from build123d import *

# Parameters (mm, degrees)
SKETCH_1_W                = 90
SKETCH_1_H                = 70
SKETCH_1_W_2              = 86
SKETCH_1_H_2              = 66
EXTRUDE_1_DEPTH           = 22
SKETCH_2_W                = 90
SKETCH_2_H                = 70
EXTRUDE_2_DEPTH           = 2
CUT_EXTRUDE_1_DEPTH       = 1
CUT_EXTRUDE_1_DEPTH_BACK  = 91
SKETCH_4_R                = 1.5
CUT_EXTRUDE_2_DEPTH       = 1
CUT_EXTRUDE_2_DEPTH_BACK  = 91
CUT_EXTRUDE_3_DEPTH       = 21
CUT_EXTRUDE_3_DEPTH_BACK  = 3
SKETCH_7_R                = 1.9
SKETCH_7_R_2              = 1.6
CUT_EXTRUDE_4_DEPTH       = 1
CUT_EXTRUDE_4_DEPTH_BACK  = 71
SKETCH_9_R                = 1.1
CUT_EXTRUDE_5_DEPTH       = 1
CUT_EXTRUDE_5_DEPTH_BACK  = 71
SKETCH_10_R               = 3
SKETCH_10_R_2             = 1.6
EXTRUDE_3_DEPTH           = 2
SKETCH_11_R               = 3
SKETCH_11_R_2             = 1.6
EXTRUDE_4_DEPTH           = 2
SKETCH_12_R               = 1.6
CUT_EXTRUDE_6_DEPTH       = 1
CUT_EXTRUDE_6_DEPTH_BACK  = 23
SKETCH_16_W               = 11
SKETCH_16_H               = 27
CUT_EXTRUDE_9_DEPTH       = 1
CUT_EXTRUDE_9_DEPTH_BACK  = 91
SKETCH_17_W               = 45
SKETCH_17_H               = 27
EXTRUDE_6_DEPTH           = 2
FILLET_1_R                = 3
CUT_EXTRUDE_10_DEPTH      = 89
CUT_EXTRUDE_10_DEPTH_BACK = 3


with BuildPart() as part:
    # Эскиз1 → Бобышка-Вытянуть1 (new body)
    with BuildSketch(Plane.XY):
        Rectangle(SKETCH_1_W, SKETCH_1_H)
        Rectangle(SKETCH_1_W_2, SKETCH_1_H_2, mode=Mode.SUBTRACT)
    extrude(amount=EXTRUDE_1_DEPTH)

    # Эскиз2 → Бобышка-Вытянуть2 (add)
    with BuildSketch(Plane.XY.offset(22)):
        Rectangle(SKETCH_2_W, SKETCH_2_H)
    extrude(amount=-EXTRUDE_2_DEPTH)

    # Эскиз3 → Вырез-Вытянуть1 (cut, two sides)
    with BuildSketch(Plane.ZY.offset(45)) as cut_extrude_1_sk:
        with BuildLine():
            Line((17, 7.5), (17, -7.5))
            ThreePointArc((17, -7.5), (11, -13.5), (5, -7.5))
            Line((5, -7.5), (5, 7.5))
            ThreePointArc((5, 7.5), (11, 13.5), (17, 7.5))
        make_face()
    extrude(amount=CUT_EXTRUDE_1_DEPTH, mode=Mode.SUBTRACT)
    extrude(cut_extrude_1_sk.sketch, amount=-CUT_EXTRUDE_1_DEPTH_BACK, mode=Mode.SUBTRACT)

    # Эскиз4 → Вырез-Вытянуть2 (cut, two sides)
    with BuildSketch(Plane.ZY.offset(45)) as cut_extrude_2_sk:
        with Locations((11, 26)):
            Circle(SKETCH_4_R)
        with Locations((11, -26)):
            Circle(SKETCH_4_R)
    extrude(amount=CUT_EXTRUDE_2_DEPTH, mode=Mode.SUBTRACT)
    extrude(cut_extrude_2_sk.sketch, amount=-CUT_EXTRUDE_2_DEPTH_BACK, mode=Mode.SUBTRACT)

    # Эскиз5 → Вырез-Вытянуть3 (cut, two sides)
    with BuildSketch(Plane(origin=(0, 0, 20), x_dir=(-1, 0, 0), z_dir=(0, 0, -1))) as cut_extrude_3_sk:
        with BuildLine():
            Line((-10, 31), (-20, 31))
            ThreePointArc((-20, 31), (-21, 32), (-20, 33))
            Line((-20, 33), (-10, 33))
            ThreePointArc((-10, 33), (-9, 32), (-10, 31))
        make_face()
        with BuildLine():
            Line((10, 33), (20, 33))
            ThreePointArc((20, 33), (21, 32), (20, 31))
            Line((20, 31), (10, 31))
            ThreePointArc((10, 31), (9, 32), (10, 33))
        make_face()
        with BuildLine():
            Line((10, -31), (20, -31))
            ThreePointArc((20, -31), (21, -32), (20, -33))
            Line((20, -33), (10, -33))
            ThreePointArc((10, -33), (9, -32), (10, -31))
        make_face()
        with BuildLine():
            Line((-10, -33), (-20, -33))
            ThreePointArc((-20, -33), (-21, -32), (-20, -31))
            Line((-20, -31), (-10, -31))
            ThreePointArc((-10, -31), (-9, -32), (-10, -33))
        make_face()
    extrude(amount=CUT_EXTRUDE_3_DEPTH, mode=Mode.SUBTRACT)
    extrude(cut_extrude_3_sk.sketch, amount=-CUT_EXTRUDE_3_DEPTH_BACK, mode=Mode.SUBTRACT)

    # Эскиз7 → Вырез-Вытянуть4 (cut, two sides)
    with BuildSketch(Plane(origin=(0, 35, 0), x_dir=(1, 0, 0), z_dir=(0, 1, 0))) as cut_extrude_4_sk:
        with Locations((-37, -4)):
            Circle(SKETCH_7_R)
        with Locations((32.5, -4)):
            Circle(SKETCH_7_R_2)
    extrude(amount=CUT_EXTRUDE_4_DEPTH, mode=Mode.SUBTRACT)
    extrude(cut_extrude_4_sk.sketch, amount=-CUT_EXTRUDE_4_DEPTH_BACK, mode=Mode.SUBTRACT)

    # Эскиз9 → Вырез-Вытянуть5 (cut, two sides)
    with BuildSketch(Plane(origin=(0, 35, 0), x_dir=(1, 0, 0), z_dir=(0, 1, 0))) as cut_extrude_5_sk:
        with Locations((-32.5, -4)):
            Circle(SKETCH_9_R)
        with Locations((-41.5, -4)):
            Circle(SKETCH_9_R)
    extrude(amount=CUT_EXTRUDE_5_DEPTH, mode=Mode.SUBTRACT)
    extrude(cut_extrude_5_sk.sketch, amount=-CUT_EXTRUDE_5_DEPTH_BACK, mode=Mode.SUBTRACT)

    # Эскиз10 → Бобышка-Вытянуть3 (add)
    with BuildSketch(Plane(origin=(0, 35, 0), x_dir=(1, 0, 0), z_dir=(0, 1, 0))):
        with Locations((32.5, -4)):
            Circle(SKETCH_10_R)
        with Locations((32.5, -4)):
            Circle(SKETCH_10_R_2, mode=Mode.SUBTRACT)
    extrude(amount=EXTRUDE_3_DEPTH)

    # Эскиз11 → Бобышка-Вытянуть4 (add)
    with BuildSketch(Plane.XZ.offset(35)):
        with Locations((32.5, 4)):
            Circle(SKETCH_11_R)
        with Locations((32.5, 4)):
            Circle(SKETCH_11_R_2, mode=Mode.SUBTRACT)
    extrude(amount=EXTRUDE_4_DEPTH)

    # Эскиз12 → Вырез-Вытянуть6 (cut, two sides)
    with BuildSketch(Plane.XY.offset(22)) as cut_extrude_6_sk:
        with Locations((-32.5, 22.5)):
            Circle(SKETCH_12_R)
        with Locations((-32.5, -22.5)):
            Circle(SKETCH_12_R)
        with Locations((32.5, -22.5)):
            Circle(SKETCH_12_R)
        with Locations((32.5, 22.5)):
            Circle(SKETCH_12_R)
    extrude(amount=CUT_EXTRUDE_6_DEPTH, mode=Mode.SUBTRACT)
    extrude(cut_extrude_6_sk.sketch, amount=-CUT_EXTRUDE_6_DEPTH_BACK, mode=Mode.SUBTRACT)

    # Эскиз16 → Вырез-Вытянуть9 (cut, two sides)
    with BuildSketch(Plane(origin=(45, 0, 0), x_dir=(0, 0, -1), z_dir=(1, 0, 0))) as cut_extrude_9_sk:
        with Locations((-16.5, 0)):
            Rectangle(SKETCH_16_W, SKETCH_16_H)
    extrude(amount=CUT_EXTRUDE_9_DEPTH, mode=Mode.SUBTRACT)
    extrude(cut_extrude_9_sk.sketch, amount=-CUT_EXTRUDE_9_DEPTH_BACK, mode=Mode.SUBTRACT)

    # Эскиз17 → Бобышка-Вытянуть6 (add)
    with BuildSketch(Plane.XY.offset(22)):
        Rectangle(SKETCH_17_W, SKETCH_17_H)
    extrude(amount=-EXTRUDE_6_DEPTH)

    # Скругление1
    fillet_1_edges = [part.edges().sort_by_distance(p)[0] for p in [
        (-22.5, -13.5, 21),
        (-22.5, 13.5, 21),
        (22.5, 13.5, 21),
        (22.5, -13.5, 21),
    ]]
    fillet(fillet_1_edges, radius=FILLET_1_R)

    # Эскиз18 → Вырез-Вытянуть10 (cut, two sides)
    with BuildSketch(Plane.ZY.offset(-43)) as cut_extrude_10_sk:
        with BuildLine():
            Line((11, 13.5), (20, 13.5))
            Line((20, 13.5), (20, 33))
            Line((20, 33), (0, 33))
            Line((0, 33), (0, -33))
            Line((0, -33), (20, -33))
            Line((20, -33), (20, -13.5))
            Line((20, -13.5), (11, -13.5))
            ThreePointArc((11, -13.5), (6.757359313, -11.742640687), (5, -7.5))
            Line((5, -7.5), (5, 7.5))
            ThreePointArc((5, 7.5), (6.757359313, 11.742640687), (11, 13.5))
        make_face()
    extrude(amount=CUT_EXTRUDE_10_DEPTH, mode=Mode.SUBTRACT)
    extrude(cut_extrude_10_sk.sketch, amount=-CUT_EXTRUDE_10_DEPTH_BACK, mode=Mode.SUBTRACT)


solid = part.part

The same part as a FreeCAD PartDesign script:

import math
import FreeCAD as App
import Part
import Sketcher

V = App.Vector


def edges_at(feature, points):
    """Names of the edges that pass closest to the given points."""
    edges = feature.Shape.Edges
    near = lambda p: min(range(len(edges)), key=lambda i: edges[i].distToShape(Part.Vertex(*p))[0])
    return sorted({f"Edge{near(p) + 1}" for p in points})

doc = App.newDocument("Part")
body = doc.addObject("PartDesign::Body", "Body")

sketch1 = body.newObject("Sketcher::SketchObject", "Sketch")
sketch1.AttachmentSupport = (doc.getObject("XY_Plane"), [""])
sketch1.MapMode = "FlatFace"
sketch1.addGeometry([
    Part.LineSegment(V(-45, 35, 0), V(-45, -35, 0)),
    Part.LineSegment(V(-45, -35, 0), V(45, -35, 0)),
    Part.LineSegment(V(45, -35, 0), V(45, 35, 0)),
    Part.LineSegment(V(45, 35, 0), V(-45, 35, 0)),
    Part.LineSegment(V(43, -33, 0), V(-43, -33, 0)),
    Part.LineSegment(V(-43, -33, 0), V(-43, 33, 0)),
    Part.LineSegment(V(-43, 33, 0), V(43, 33, 0)),
    Part.LineSegment(V(43, 33, 0), V(43, -33, 0)),
], False)
sketch1.addConstraint([
    Sketcher.Constraint("Coincident", 0, 2, 1, 1),
    Sketcher.Constraint("Coincident", 1, 2, 2, 1),
    Sketcher.Constraint("Coincident", 2, 2, 3, 1),
    Sketcher.Constraint("Coincident", 3, 2, 0, 1),
    Sketcher.Constraint("Coincident", 4, 2, 5, 1),
    Sketcher.Constraint("Coincident", 5, 2, 6, 1),
    Sketcher.Constraint("Coincident", 6, 2, 7, 1),
    Sketcher.Constraint("Coincident", 7, 2, 4, 1),
    Sketcher.Constraint("Vertical", 0),
    Sketcher.Constraint("Horizontal", 1),
    Sketcher.Constraint("Vertical", 2),
    Sketcher.Constraint("Horizontal", 3),
    Sketcher.Constraint("Horizontal", 4),
    Sketcher.Constraint("Vertical", 5),
    Sketcher.Constraint("Horizontal", 6),
    Sketcher.Constraint("Vertical", 7),
    Sketcher.Constraint("Symmetric", 0, 2, 2, 2, -1, 1),
    Sketcher.Constraint("Symmetric", 4, 2, 6, 2, -1, 1),
    Sketcher.Constraint("DistanceX", 1, 1, 1, 2, 90.0),
    Sketcher.Constraint("DistanceX", 4, 2, 4, 1, 86.0),
    Sketcher.Constraint("DistanceY", 0, 2, 0, 1, 70.0),
    Sketcher.Constraint("DistanceY", 5, 1, 5, 2, 66.0),
])
pad1 = body.newObject("PartDesign::Pad", "Pad")
pad1.Profile = sketch1
pad1.Length = 22

sketch2 = body.newObject("Sketcher::SketchObject", "Sketch001")
sketch2.AttachmentSupport = (doc.getObject("XY_Plane"), [""])
sketch2.MapMode = "FlatFace"
sketch2.AttachmentOffset = App.Placement(V(0, 0, 22), App.Rotation())
sketch2.addGeometry([
    Part.LineSegment(V(-45, 35, 0), V(-45, -35, 0)),
    Part.LineSegment(V(-45, -35, 0), V(45, -35, 0)),
    Part.LineSegment(V(45, -35, 0), V(45, 35, 0)),
    Part.LineSegment(V(45, 35, 0), V(-45, 35, 0)),
], False)
sketch2.addConstraint([
    Sketcher.Constraint("Coincident", 0, 2, 1, 1),
    Sketcher.Constraint("Coincident", 1, 2, 2, 1),
    Sketcher.Constraint("Coincident", 2, 2, 3, 1),
    Sketcher.Constraint("Coincident", 3, 2, 0, 1),
    Sketcher.Constraint("Vertical", 0),
    Sketcher.Constraint("Horizontal", 1),
    Sketcher.Constraint("Vertical", 2),
    Sketcher.Constraint("Horizontal", 3),
    Sketcher.Constraint("Symmetric", 0, 2, 2, 2, -1, 1),
    Sketcher.Constraint("DistanceX", 1, 1, 1, 2, 90.0),
    Sketcher.Constraint("DistanceY", 0, 2, 0, 1, 70.0),
])
pad2 = body.newObject("PartDesign::Pad", "Pad001")
pad2.Profile = sketch2
pad2.Length = 2
pad2.Reversed = True

sketch3 = body.newObject("Sketcher::SketchObject", "Sketch002")
sketch3.AttachmentSupport = (doc.getObject("YZ_Plane"), [""])
sketch3.MapMode = "FlatFace"
sketch3.AttachmentOffset = App.Placement(V(0, 0, -45), App.Rotation())
sketch3.addGeometry([
    Part.LineSegment(V(-8, 17, 0), V(8, 17, 0)),
    Part.ArcOfCircle(Part.Circle(V(8, 11, 0), V(0, 0, 1), 6), math.radians(-90), math.radians(90)),
    Part.LineSegment(V(8, 5, 0), V(-8, 5, 0)),
    Part.ArcOfCircle(Part.Circle(V(-8, 11, 0), V(0, 0, 1), 6), math.radians(90), math.radians(270)),
], False)
sketch3.addConstraint([
    Sketcher.Constraint("Tangent", 0, 2, 1, 2),
    Sketcher.Constraint("Tangent", 1, 1, 2, 1),
    Sketcher.Constraint("Tangent", 2, 2, 3, 2),
    Sketcher.Constraint("Tangent", 3, 1, 0, 1),
    Sketcher.Constraint("Horizontal", 0),
    Sketcher.Constraint("Horizontal", 2),
    Sketcher.Constraint("Radius", 1, 6.0),
    Sketcher.Constraint("DistanceX", 0, 1, 0, 2, 15.0),
    Sketcher.Constraint("DistanceY", -1, 1, 1, 3, 11.0),
    Sketcher.Constraint("DistanceX", -1, 1, 1, 3, 7.5),
])
pocket1 = body.newObject("PartDesign::Pocket", "Pocket")
pocket1.Profile = sketch3
pocket1.Type = "ThroughAll"
pocket1.Midplane = True

sketch4 = body.newObject("Sketcher::SketchObject", "Sketch003")
sketch4.AttachmentSupport = (doc.getObject("YZ_Plane"), [""])
sketch4.MapMode = "FlatFace"
sketch4.AttachmentOffset = App.Placement(V(0, 0, -45), App.Rotation())
sketch4.addGeometry([
    Part.Circle(V(26, 11, 0), V(0, 0, 1), 1.5),
    Part.Circle(V(-26, 11, 0), V(0, 0, 1), 1.5),
], False)
sketch4.addConstraint([
    Sketcher.Constraint("Equal", 0, 1),
    Sketcher.Constraint("Symmetric", 0, 3, 1, 3, -2),
    Sketcher.Constraint("Diameter", 0, 3.0),
    Sketcher.Constraint("DistanceX", -1, 1, 0, 3, 26.0),
    Sketcher.Constraint("DistanceY", -1, 1, 0, 3, 11.0),
])
pocket2 = body.newObject("PartDesign::Pocket", "Pocket001")
pocket2.Profile = sketch4
pocket2.Type = "ThroughAll"
pocket2.Midplane = True

sketch5 = body.newObject("Sketcher::SketchObject", "Sketch004")
sketch5.AttachmentSupport = (doc.getObject("XY_Plane"), [""])
sketch5.MapMode = "FlatFace"
sketch5.AttachmentOffset = App.Placement(V(0, 0, 20), App.Rotation())
sketch5.addGeometry([
    Part.LineSegment(V(20, 31, 0), V(10, 31, 0)),
    Part.ArcOfCircle(Part.Circle(V(10, 32, 0), V(0, 0, 1), 1), math.radians(90), math.radians(270)),
    Part.LineSegment(V(10, 33, 0), V(20, 33, 0)),
    Part.ArcOfCircle(Part.Circle(V(20, 32, 0), V(0, 0, 1), 1), math.radians(-90), math.radians(90)),
    Part.LineSegment(V(-20, 33, 0), V(-10, 33, 0)),
    Part.ArcOfCircle(Part.Circle(V(-10, 32, 0), V(0, 0, 1), 1), math.radians(-90), math.radians(90)),
    Part.LineSegment(V(-10, 31, 0), V(-20, 31, 0)),
    Part.ArcOfCircle(Part.Circle(V(-20, 32, 0), V(0, 0, 1), 1), math.radians(90), math.radians(270)),
    Part.LineSegment(V(-20, -31, 0), V(-10, -31, 0)),
    Part.ArcOfCircle(Part.Circle(V(-10, -32, 0), V(0, 0, 1), 1), math.radians(-90), math.radians(90)),
    Part.LineSegment(V(-10, -33, 0), V(-20, -33, 0)),
    Part.ArcOfCircle(Part.Circle(V(-20, -32, 0), V(0, 0, 1), 1), math.radians(90), math.radians(270)),
    Part.LineSegment(V(20, -33, 0), V(10, -33, 0)),
    Part.ArcOfCircle(Part.Circle(V(10, -32, 0), V(0, 0, 1), 1), math.radians(90), math.radians(270)),
    Part.LineSegment(V(10, -31, 0), V(20, -31, 0)),
    Part.ArcOfCircle(Part.Circle(V(20, -32, 0), V(0, 0, 1), 1), math.radians(-90), math.radians(90)),
], False)
sketch5.addConstraint([
    Sketcher.Constraint("Tangent", 0, 2, 1, 2),
    Sketcher.Constraint("Tangent", 1, 1, 2, 1),
    Sketcher.Constraint("Tangent", 2, 2, 3, 2),
    Sketcher.Constraint("Tangent", 3, 1, 0, 1),
    Sketcher.Constraint("Tangent", 4, 2, 5, 2),
    Sketcher.Constraint("Tangent", 5, 1, 6, 1),
    Sketcher.Constraint("Tangent", 6, 2, 7, 2),
    Sketcher.Constraint("Tangent", 7, 1, 4, 1),
    Sketcher.Constraint("Tangent", 8, 2, 9, 2),
    Sketcher.Constraint("Tangent", 9, 1, 10, 1),
    Sketcher.Constraint("Tangent", 10, 2, 11, 2),
    Sketcher.Constraint("Tangent", 11, 1, 8, 1),
    Sketcher.Constraint("Tangent", 12, 2, 13, 2),
    Sketcher.Constraint("Tangent", 13, 1, 14, 1),
    Sketcher.Constraint("Tangent", 14, 2, 15, 2),
    Sketcher.Constraint("Tangent", 15, 1, 12, 1),
    Sketcher.Constraint("Horizontal", 0),
    Sketcher.Constraint("Horizontal", 2),
    Sketcher.Constraint("Horizontal", 4),
    Sketcher.Constraint("Horizontal", 6),
    Sketcher.Constraint("Horizontal", 8),
    Sketcher.Constraint("Horizontal", 10),
    Sketcher.Constraint("Horizontal", 12),
    Sketcher.Constraint("Horizontal", 14),
    Sketcher.Constraint("Equal", 3, 5),
    Sketcher.Constraint("Equal", 7, 9),
    Sketcher.Constraint("Equal", 11, 13),
    Sketcher.Constraint("Symmetric", 1, 3, 9, 3, -1, 1),
    Sketcher.Constraint("Symmetric", 5, 3, 13, 3, -1, 1),
    Sketcher.Constraint("Symmetric", 1, 3, 5, 3, -2),
    Sketcher.Constraint("Vertical", 7, 3, 11, 3),
    Sketcher.Constraint("Vertical", 3, 3, 15, 3),
    Sketcher.Constraint("Equal", 2, 4),
    Sketcher.Constraint("Radius", 1, 1.0),
    Sketcher.Constraint("DistanceX", 0, 2, 0, 1, 10.0),
    Sketcher.Constraint("DistanceX", -1, 1, 1, 3, 10.0),
    Sketcher.Constraint("DistanceY", -1, 1, 1, 3, 32.0),
])
pocket3 = body.newObject("PartDesign::Pocket", "Pocket002")
pocket3.Profile = sketch5
pocket3.Type = "ThroughAll"
pocket3.Midplane = True

sketch6 = body.newObject("Sketcher::SketchObject", "Sketch005")
sketch6.AttachmentSupport = (doc.getObject("XZ_Plane"), [""])
sketch6.MapMode = "FlatFace"
sketch6.AttachmentOffset = App.Placement(V(0, 0, -35), App.Rotation())
sketch6.addGeometry([
    Part.Circle(V(-37, 4, 0), V(0, 0, 1), 1.9),
    Part.Circle(V(32.5, 4, 0), V(0, 0, 1), 1.6),
], False)
sketch6.addConstraint([
    Sketcher.Constraint("Horizontal", 0, 3, 1, 3),
    Sketcher.Constraint("Diameter", 0, 3.8),
    Sketcher.Constraint("Diameter", 1, 3.2),
    Sketcher.Constraint("DistanceX", 0, 3, -1, 1, 37.0),
    Sketcher.Constraint("DistanceY", -1, 1, 0, 3, 4.0),
    Sketcher.Constraint("DistanceX", -1, 1, 1, 3, 32.5),
])
pocket4 = body.newObject("PartDesign::Pocket", "Pocket003")
pocket4.Profile = sketch6
pocket4.Type = "ThroughAll"
pocket4.Midplane = True

sketch7 = body.newObject("Sketcher::SketchObject", "Sketch006")
sketch7.AttachmentSupport = (doc.getObject("XZ_Plane"), [""])
sketch7.MapMode = "FlatFace"
sketch7.AttachmentOffset = App.Placement(V(0, 0, -35), App.Rotation())
sketch7.addGeometry([
    Part.Circle(V(-32.5, 4, 0), V(0, 0, 1), 1.1),
    Part.Circle(V(-41.5, 4, 0), V(0, 0, 1), 1.1),
], False)
sketch7.addConstraint([
    Sketcher.Constraint("Equal", 0, 1),
    Sketcher.Constraint("Horizontal", 0, 3, 1, 3),
    Sketcher.Constraint("Diameter", 0, 2.2),
    Sketcher.Constraint("DistanceY", -1, 1, 0, 3, 4.0),
    Sketcher.Constraint("DistanceX", 1, 3, 0, 3, 9.0),
    Sketcher.Constraint("DistanceX", 0, 3, -1, 1, 32.5),
])
pocket5 = body.newObject("PartDesign::Pocket", "Pocket004")
pocket5.Profile = sketch7
pocket5.Type = "ThroughAll"
pocket5.Midplane = True

sketch8 = body.newObject("Sketcher::SketchObject", "Sketch007")
sketch8.AttachmentSupport = (doc.getObject("XZ_Plane"), [""])
sketch8.MapMode = "FlatFace"
sketch8.AttachmentOffset = App.Placement(V(0, 0, -35), App.Rotation())
sketch8.addGeometry([
    Part.Circle(V(32.5, 4, 0), V(0, 0, 1), 3),
    Part.Circle(V(32.5, 4, 0), V(0, 0, 1), 1.6),
], False)
sketch8.addConstraint([
    Sketcher.Constraint("Coincident", 1, 3, 0, 3),
    Sketcher.Constraint("Diameter", 0, 6.0),
    Sketcher.Constraint("Diameter", 1, 3.2),
    Sketcher.Constraint("DistanceY", -1, 1, 0, 3, 4.0),
    Sketcher.Constraint("DistanceX", -1, 1, 0, 3, 32.5),
])
pad3 = body.newObject("PartDesign::Pad", "Pad002")
pad3.Profile = sketch8
pad3.Length = 2
pad3.Reversed = True

sketch9 = body.newObject("Sketcher::SketchObject", "Sketch008")
sketch9.AttachmentSupport = (doc.getObject("XZ_Plane"), [""])
sketch9.MapMode = "FlatFace"
sketch9.AttachmentOffset = App.Placement(V(0, 0, 35), App.Rotation())
sketch9.addGeometry([
    Part.Circle(V(32.5, 4, 0), V(0, 0, 1), 3),
    Part.Circle(V(32.5, 4, 0), V(0, 0, 1), 1.6),
], False)
sketch9.addConstraint([
    Sketcher.Constraint("Coincident", 1, 3, 0, 3),
    Sketcher.Constraint("Diameter", 0, 6.0),
    Sketcher.Constraint("Diameter", 1, 3.2),
    Sketcher.Constraint("DistanceY", -1, 1, 0, 3, 4.0),
    Sketcher.Constraint("DistanceX", -1, 1, 0, 3, 32.5),
])
pad4 = body.newObject("PartDesign::Pad", "Pad003")
pad4.Profile = sketch9
pad4.Length = 2

sketch10 = body.newObject("Sketcher::SketchObject", "Sketch009")
sketch10.AttachmentSupport = (doc.getObject("XY_Plane"), [""])
sketch10.MapMode = "FlatFace"
sketch10.AttachmentOffset = App.Placement(V(0, 0, 22), App.Rotation())
sketch10.addGeometry([
    Part.Circle(V(-32.5, 22.5, 0), V(0, 0, 1), 1.6),
    Part.Circle(V(-32.5, -22.5, 0), V(0, 0, 1), 1.6),
    Part.Circle(V(32.5, -22.5, 0), V(0, 0, 1), 1.6),
    Part.Circle(V(32.5, 22.5, 0), V(0, 0, 1), 1.6),
], False)
sketch10.addConstraint([
    Sketcher.Constraint("Equal", 0, 1),
    Sketcher.Constraint("Equal", 1, 2),
    Sketcher.Constraint("Equal", 2, 3),
    Sketcher.Constraint("Symmetric", 0, 3, 2, 3, -1, 1),
    Sketcher.Constraint("Symmetric", 1, 3, 3, 3, -1, 1),
    Sketcher.Constraint("Symmetric", 1, 3, 2, 3, -2),
    Sketcher.Constraint("Diameter", 0, 3.2),
    Sketcher.Constraint("DistanceY", 1, 3, 0, 3, 45.0),
    Sketcher.Constraint("DistanceX", 1, 3, 2, 3, 65.0),
])
pocket6 = body.newObject("PartDesign::Pocket", "Pocket005")
pocket6.Profile = sketch10
pocket6.Type = "ThroughAll"
pocket6.Midplane = True

sketch11 = body.newObject("Sketcher::SketchObject", "Sketch010")
sketch11.AttachmentSupport = (doc.getObject("YZ_Plane"), [""])
sketch11.MapMode = "FlatFace"
sketch11.AttachmentOffset = App.Placement(V(0, 0, 45), App.Rotation())
sketch11.addGeometry([
    Part.LineSegment(V(14, 22, 0), V(-14, 22, 0)),
    Part.LineSegment(V(-14, 22, 0), V(-14, 11, 0)),
    Part.LineSegment(V(-14, 11, 0), V(14, 11, 0)),
    Part.LineSegment(V(14, 11, 0), V(14, 22, 0)),
], False)
sketch11.addConstraint([
    Sketcher.Constraint("Coincident", 0, 2, 1, 1),
    Sketcher.Constraint("Coincident", 1, 2, 2, 1),
    Sketcher.Constraint("Coincident", 2, 2, 3, 1),
    Sketcher.Constraint("Coincident", 3, 2, 0, 1),
    Sketcher.Constraint("Horizontal", 0),
    Sketcher.Constraint("Vertical", 1),
    Sketcher.Constraint("Horizontal", 2),
    Sketcher.Constraint("Vertical", 3),
    Sketcher.Constraint("DistanceX", 0, 2, 0, 1, 27.0),
    Sketcher.Constraint("DistanceY", 1, 2, 1, 1, 11.0),
    Sketcher.Constraint("DistanceY", -1, 1, 0, 2, 22.0),
    Sketcher.Constraint("DistanceX", 0, 2, -1, 1, 13.5),
])
pocket7 = body.newObject("PartDesign::Pocket", "Pocket006")
pocket7.Profile = sketch11
pocket7.Type = "ThroughAll"
pocket7.Midplane = True

sketch12 = body.newObject("Sketcher::SketchObject", "Sketch011")
sketch12.AttachmentSupport = (doc.getObject("XY_Plane"), [""])
sketch12.MapMode = "FlatFace"
sketch12.AttachmentOffset = App.Placement(V(0, 0, 22), App.Rotation())
sketch12.addGeometry([
    Part.LineSegment(V(-22, 14, 0), V(-22, -14, 0)),
    Part.LineSegment(V(-22, -14, 0), V(22, -14, 0)),
    Part.LineSegment(V(22, -14, 0), V(22, 14, 0)),
    Part.LineSegment(V(22, 14, 0), V(-22, 14, 0)),
], False)
sketch12.addConstraint([
    Sketcher.Constraint("Coincident", 0, 2, 1, 1),
    Sketcher.Constraint("Coincident", 1, 2, 2, 1),
    Sketcher.Constraint("Coincident", 2, 2, 3, 1),
    Sketcher.Constraint("Coincident", 3, 2, 0, 1),
    Sketcher.Constraint("Vertical", 0),
    Sketcher.Constraint("Horizontal", 1),
    Sketcher.Constraint("Vertical", 2),
    Sketcher.Constraint("Horizontal", 3),
    Sketcher.Constraint("Symmetric", 0, 2, 2, 2, -1, 1),
    Sketcher.Constraint("DistanceX", 1, 1, 1, 2, 45.0),
    Sketcher.Constraint("DistanceY", 0, 2, 0, 1, 27.0),
])
pad5 = body.newObject("PartDesign::Pad", "Pad004")
pad5.Profile = sketch12
pad5.Length = 2
pad5.Reversed = True
doc.recompute()

fillet = body.newObject("PartDesign::Fillet", "Fillet")
fillet.Base = (pad5, edges_at(pad5, [
    (-22.5, -13.5, 21),
    (-22.5, 13.5, 21),
    (22.5, 13.5, 21),
    (22.5, -13.5, 21),
]))
fillet.Radius = 3

sketch13 = body.newObject("Sketcher::SketchObject", "Sketch012")
sketch13.AttachmentSupport = (doc.getObject("YZ_Plane"), [""])
sketch13.MapMode = "FlatFace"
sketch13.AttachmentOffset = App.Placement(V(0, 0, 43), App.Rotation())
sketch13.addGeometry([
    Part.LineSegment(V(14, 11, 0), V(14, 20, 0)),
    Part.LineSegment(V(14, 20, 0), V(33, 20, 0)),
    Part.LineSegment(V(33, 20, 0), V(33, 0, 0)),
    Part.LineSegment(V(33, 0, 0), V(-33, 0, 0)),
    Part.LineSegment(V(-33, 0, 0), V(-33, 20, 0)),
    Part.LineSegment(V(-33, 20, 0), V(-14, 20, 0)),
    Part.LineSegment(V(-14, 20, 0), V(-14, 11, 0)),
    Part.ArcOfCircle(Part.Circle(V(-8, 11, 0), V(0, 0, 1), 6), math.radians(180), math.radians(270)),
    Part.LineSegment(V(-8, 5, 0), V(8, 5, 0)),
    Part.ArcOfCircle(Part.Circle(V(8, 11, 0), V(0, 0, 1), 6), math.radians(-90), math.radians(0)),
], False)
sketch13.addConstraint([
    Sketcher.Constraint("Coincident", 0, 2, 1, 1),
    Sketcher.Constraint("Coincident", 1, 2, 2, 1),
    Sketcher.Constraint("Coincident", 2, 2, 3, 1),
    Sketcher.Constraint("Coincident", 3, 2, 4, 1),
    Sketcher.Constraint("Coincident", 4, 2, 5, 1),
    Sketcher.Constraint("Coincident", 5, 2, 6, 1),
    Sketcher.Constraint("Tangent", 6, 2, 7, 1),
    Sketcher.Constraint("Tangent", 7, 2, 8, 1),
    Sketcher.Constraint("Tangent", 8, 2, 9, 1),
    Sketcher.Constraint("Tangent", 9, 2, 0, 1),
    Sketcher.Constraint("Vertical", 0),
    Sketcher.Constraint("Horizontal", 1),
    Sketcher.Constraint("Vertical", 2),
    Sketcher.Constraint("Horizontal", 3),
    Sketcher.Constraint("Vertical", 4),
    Sketcher.Constraint("Horizontal", 5),
    Sketcher.Constraint("Vertical", 6),
    Sketcher.Constraint("Horizontal", 8),
    Sketcher.Constraint("Equal", 7, 9),
    Sketcher.Constraint("Symmetric", 2, 2, 3, 2, -1, 1),
    Sketcher.Constraint("Symmetric", 0, 2, 5, 2, -2),
    Sketcher.Constraint("Radius", 7, 6.0),
    Sketcher.Constraint("DistanceX", 3, 2, 3, 1, 66.0),
    Sketcher.Constraint("DistanceX", 8, 1, 8, 2, 15.0),
    Sketcher.Constraint("DistanceY", 0, 1, 0, 2, 9.0),
    Sketcher.Constraint("DistanceY", 2, 2, 2, 1, 20.0),
])
pocket8 = body.newObject("PartDesign::Pocket", "Pocket007")
pocket8.Profile = sketch13
pocket8.Type = "ThroughAll"
pocket8.Midplane = True

doc.recompute()
